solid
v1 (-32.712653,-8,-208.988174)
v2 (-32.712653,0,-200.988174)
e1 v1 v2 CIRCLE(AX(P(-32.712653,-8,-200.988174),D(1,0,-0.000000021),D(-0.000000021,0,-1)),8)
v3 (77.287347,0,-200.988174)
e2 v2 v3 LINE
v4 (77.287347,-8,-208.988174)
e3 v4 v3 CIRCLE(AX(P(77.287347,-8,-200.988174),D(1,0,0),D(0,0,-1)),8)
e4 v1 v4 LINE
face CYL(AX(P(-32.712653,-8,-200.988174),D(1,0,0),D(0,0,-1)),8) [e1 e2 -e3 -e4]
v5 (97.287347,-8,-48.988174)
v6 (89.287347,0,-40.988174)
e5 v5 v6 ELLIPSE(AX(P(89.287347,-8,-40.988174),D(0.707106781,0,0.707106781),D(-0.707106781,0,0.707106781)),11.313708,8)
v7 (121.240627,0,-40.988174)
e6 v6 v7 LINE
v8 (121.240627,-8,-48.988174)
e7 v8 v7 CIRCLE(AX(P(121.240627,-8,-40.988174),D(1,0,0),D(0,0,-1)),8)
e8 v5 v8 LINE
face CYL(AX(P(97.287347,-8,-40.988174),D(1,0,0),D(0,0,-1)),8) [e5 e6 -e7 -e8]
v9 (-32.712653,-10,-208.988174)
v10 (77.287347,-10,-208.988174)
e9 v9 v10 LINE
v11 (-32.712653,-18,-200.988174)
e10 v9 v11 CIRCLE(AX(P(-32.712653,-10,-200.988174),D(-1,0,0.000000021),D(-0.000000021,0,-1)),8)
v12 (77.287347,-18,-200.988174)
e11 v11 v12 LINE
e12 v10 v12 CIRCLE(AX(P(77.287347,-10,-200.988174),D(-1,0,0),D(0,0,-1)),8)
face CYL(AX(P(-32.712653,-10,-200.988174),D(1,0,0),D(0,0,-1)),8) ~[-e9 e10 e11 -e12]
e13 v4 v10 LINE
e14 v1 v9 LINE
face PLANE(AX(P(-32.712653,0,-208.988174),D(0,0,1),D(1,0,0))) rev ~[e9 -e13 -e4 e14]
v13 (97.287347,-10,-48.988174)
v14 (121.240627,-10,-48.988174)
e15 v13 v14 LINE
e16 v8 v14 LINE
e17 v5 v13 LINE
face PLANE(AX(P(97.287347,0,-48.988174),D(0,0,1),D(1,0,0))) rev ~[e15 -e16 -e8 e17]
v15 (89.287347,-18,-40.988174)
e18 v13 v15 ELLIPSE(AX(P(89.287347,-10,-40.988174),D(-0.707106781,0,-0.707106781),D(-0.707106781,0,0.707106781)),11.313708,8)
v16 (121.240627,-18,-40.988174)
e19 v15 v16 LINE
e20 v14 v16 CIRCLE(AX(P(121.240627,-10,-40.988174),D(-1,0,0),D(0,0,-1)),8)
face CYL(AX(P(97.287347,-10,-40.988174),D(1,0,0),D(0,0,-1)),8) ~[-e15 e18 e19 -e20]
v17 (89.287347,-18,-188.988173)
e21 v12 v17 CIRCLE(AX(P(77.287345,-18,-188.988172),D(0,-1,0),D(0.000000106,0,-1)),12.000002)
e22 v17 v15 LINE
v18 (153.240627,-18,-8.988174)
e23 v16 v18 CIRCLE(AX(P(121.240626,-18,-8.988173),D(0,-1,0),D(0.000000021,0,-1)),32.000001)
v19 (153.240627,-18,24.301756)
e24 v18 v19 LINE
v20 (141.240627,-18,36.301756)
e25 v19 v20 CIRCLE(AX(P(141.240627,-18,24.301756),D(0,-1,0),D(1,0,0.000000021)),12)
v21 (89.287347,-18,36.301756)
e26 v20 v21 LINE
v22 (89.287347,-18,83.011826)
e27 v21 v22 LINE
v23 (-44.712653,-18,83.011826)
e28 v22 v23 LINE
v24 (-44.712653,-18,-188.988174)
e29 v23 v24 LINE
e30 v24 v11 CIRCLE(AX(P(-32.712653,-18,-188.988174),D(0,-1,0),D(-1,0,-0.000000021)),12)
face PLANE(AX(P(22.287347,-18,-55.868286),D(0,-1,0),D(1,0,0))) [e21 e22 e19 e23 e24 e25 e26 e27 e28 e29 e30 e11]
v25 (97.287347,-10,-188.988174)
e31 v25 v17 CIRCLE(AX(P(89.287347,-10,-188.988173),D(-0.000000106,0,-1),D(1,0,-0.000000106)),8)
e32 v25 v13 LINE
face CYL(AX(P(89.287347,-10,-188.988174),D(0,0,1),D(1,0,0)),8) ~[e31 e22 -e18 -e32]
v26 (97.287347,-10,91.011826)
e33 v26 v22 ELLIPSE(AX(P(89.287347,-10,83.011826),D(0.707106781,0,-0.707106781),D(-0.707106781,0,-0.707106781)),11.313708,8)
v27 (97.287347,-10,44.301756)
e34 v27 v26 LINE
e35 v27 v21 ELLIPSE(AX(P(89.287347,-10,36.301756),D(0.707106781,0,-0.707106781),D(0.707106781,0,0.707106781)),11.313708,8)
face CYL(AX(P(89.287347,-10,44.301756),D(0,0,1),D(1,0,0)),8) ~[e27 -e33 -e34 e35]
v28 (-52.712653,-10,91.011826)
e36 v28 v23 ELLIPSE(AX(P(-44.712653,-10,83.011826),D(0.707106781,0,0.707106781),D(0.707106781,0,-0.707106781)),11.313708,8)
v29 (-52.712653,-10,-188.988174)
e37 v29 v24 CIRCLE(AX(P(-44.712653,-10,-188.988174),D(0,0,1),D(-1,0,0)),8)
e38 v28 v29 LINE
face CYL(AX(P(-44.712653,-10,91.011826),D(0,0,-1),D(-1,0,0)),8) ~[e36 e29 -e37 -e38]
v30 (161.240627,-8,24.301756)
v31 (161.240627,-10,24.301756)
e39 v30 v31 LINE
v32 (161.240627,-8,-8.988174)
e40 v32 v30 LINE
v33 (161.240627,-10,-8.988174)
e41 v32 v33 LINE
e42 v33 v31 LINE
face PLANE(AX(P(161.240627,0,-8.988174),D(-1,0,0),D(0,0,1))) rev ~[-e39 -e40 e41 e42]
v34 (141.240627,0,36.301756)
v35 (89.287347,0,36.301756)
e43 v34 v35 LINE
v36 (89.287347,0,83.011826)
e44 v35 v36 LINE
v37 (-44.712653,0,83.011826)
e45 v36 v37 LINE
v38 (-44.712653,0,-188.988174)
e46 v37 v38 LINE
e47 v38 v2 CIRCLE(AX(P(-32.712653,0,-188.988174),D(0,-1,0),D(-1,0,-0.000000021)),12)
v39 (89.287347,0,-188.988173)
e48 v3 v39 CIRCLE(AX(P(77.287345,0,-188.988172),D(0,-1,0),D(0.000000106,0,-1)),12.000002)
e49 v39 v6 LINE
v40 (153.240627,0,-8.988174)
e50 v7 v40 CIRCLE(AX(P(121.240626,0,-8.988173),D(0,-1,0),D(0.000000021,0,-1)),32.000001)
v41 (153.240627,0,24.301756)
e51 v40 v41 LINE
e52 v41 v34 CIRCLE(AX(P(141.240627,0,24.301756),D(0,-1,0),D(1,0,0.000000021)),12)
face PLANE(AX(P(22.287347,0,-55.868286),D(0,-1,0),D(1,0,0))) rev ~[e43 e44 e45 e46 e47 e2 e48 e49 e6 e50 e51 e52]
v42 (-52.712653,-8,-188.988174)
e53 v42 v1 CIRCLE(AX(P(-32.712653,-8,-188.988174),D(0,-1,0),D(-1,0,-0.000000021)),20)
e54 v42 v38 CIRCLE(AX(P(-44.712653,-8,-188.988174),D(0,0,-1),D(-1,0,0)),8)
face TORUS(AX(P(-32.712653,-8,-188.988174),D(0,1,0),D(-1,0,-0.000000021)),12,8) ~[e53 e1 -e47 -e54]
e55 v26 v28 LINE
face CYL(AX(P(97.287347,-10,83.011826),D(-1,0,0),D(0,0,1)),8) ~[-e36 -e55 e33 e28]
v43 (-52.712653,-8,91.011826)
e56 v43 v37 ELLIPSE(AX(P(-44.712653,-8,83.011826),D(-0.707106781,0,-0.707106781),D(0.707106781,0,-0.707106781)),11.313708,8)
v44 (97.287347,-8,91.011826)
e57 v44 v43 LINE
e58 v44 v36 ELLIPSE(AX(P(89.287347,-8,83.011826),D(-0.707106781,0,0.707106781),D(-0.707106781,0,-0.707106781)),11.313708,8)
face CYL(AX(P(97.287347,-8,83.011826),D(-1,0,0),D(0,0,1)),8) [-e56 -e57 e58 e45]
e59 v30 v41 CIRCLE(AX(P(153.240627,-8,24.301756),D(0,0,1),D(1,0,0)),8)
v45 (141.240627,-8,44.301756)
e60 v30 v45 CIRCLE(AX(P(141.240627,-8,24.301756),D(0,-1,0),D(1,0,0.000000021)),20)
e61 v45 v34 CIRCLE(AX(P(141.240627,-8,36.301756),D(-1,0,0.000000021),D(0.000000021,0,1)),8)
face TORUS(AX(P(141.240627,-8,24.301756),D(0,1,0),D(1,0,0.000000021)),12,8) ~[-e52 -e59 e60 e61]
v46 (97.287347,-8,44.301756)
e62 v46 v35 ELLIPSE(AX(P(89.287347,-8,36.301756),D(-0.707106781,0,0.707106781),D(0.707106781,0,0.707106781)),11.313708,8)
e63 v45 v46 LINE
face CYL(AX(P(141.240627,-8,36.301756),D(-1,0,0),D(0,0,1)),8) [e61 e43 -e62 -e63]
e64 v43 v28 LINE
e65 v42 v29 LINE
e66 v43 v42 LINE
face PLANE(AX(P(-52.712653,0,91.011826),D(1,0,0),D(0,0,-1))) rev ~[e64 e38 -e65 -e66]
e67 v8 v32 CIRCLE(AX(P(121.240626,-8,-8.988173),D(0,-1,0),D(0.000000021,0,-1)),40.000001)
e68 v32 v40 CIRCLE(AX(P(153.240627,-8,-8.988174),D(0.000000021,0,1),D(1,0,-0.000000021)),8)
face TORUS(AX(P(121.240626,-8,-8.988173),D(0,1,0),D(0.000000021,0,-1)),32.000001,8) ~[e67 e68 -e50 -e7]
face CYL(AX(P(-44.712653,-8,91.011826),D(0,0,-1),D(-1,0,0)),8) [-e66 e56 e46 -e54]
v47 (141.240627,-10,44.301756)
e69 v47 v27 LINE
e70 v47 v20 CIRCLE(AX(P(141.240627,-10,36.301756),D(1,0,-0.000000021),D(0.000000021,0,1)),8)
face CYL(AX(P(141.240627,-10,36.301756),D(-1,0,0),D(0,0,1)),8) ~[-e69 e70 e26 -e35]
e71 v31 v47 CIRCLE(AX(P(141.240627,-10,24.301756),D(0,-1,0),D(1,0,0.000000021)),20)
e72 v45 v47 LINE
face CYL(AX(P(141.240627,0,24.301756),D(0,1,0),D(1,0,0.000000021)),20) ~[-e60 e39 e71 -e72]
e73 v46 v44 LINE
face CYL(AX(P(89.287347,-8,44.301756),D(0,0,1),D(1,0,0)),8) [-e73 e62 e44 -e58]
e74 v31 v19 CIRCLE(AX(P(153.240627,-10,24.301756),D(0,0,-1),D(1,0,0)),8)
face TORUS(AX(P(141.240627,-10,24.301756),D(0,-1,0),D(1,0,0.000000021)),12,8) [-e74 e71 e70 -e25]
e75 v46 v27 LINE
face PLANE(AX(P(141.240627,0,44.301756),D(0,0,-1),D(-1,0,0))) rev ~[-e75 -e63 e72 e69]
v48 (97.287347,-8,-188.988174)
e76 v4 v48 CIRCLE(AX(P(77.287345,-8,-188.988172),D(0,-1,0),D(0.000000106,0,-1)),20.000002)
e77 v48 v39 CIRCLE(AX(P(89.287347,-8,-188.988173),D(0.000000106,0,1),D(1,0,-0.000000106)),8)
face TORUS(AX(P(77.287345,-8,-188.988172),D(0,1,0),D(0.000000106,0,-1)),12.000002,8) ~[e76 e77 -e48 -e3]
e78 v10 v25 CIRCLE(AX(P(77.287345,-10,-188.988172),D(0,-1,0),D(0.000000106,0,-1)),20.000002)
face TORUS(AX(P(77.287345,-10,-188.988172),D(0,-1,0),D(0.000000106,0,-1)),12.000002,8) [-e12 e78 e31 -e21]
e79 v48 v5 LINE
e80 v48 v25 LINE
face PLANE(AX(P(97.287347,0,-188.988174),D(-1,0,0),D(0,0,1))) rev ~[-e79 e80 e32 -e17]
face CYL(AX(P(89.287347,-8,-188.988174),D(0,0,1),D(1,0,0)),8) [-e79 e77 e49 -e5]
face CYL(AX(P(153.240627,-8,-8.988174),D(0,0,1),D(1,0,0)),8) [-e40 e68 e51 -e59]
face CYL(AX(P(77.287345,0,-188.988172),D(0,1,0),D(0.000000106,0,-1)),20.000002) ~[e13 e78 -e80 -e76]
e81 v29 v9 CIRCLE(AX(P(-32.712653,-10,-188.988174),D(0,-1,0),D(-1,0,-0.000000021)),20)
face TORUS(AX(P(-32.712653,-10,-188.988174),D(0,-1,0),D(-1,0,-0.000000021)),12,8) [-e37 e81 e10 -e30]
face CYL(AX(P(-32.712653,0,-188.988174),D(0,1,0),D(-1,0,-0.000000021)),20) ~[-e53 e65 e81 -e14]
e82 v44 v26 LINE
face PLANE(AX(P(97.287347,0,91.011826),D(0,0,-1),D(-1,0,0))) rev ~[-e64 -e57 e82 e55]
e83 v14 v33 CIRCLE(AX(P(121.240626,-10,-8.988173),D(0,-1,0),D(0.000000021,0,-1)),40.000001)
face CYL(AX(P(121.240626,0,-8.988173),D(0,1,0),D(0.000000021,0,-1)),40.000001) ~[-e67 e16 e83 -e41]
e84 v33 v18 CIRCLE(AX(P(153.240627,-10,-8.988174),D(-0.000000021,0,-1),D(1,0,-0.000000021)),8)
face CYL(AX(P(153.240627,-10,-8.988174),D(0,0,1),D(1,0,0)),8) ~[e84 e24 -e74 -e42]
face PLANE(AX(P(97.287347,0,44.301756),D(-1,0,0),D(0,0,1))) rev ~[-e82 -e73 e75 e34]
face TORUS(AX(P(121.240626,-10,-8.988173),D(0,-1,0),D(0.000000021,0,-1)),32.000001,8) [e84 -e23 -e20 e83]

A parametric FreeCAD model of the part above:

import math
import FreeCAD as App
import Part
import Sketcher
from FreeCAD import Vector


def edges_at(feature, points):
    """Names of the edges that pass closest to the given points."""
    edges = feature.Shape.Edges
    near = lambda p: min(range(len(edges)), key=lambda i: edges[i].distToShape(Part.Vertex(*p))[0])
    return sorted({f"Edge{near(p) + 1}" for p in points})

doc = App.newDocument("Part")
body = doc.addObject("PartDesign::Body", "Body")

sketch1 = body.newObject("Sketcher::SketchObject", "Sketch")
sketch1.AttachmentSupport = (doc.getObject("XZ_Plane"), [""])
sketch1.MapMode = "FlatFace"
sketch1.addGeometry(Part.ArcOfCircle(Part.Circle(Vector(-37.712653, -188.988174, 0), Vector(0, 0, 1), 20), math.radians(-179.999999), math.radians(-90.000001)), False)
sketch1.addGeometry(Part.LineSegment(Vector(-37.712653, -208.988174, 0), Vector(72.287347, -208.988174, 0)), False)
sketch1.addGeometry(Part.ArcOfCircle(Part.Circle(Vector(72.287345, -188.988172, 0), Vector(0, 0, 1), 20.000002), math.radians(-89.999994), math.radians(-0.000006)), False)
sketch1.addGeometry(Part.LineSegment(Vector(92.287347, -188.988174, 0), Vector(92.287347, -48.988174, 0)), False)
sketch1.addGeometry(Part.LineSegment(Vector(92.287347, -48.988174, 0), Vector(116.240627, -48.988174, 0)), False)
sketch1.addGeometry(Part.ArcOfCircle(Part.Circle(Vector(116.240626, -8.988173, 0), Vector(0, 0, 1), 40.000001), math.radians(-89.999999), math.radians(-0.000001)), False)
sketch1.addGeometry(Part.LineSegment(Vector(156.240627, -8.988174, 0), Vector(156.240627, 24.301756, 0)), False)
sketch1.addGeometry(Part.ArcOfCircle(Part.Circle(Vector(136.240627, 24.301756, 0), Vector(0, 0, 1), 20), math.radians(0.000001), math.radians(89.999999)), False)
sketch1.addGeometry(Part.LineSegment(Vector(136.240627, 44.301756, 0), Vector(92.287347, 44.301756, 0)), False)
sketch1.addGeometry(Part.LineSegment(Vector(92.287347, 44.301756, 0), Vector(92.287347, 91.011826, 0)), False)
sketch1.addGeometry(Part.LineSegment(Vector(92.287347, 91.011826, 0), Vector(-57.712653, 91.011826, 0)), False)
sketch1.addGeometry(Part.LineSegment(Vector(-57.712653, 91.011826, 0), Vector(-57.712653, -188.988174, 0)), False)
sketch1.addConstraint(Sketcher.Constraint("Tangent", 0, 2, 1, 1))
sketch1.addConstraint(Sketcher.Constraint("Tangent", 1, 2, 2, 1))
sketch1.addConstraint(Sketcher.Constraint("Tangent", 2, 2, 3, 1))
sketch1.addConstraint(Sketcher.Constraint("Coincident", 3, 2, 4, 1))
sketch1.addConstraint(Sketcher.Constraint("Tangent", 4, 2, 5, 1))
sketch1.addConstraint(Sketcher.Constraint("Tangent", 5, 2, 6, 1))
sketch1.addConstraint(Sketcher.Constraint("Tangent", 6, 2, 7, 1))
sketch1.addConstraint(Sketcher.Constraint("Tangent", 7, 2, 8, 1))
sketch1.addConstraint(Sketcher.Constraint("Coincident", 8, 2, 9, 1))
sketch1.addConstraint(Sketcher.Constraint("Coincident", 9, 2, 10, 1))
sketch1.addConstraint(Sketcher.Constraint("Coincident", 10, 2, 11, 1))
sketch1.addConstraint(Sketcher.Constraint("Tangent", 11, 2, 0, 1))
sketch1.addConstraint(Sketcher.Constraint("Horizontal", 1))
sketch1.addConstraint(Sketcher.Constraint("Vertical", 3))
sketch1.addConstraint(Sketcher.Constraint("Horizontal", 4))
sketch1.addConstraint(Sketcher.Constraint("Vertical", 6))
sketch1.addConstraint(Sketcher.Constraint("Horizontal", 8))
sketch1.addConstraint(Sketcher.Constraint("Vertical", 9))
sketch1.addConstraint(Sketcher.Constraint("Horizontal", 10))
sketch1.addConstraint(Sketcher.Constraint("Vertical", 11))
sketch1.addConstraint(Sketcher.Constraint("Equal", 0, 2))
sketch1.addConstraint(Sketcher.Constraint("Equal", 2, 7))
sketch1.addConstraint(Sketcher.Constraint("Vertical", 3, 2, 8, 2))
sketch1.addConstraint(Sketcher.Constraint("Radius", 0, 20.0))
sketch1.addConstraint(Sketcher.Constraint("Radius", 5, 40.000001))
sketch1.addConstraint(Sketcher.Constraint("DistanceX", 1, 1, 1, 2, 110.0))
sketch1.addConstraint(Sketcher.Constraint("DistanceY", 3, 1, 3, 2, 140.0))
sketch1.addConstraint(Sketcher.Constraint("DistanceY", 11, 2, 11, 1, 280.0))
sketch1.addConstraint(Sketcher.Constraint("DistanceX", 4, 1, 4, 2, 23.95328))
sketch1.addConstraint(Sketcher.Constraint("DistanceY", 6, 1, 6, 2, 33.28993))
sketch1.addConstraint(Sketcher.Constraint("DistanceY", 2, 3, -1, 1, 188.988172))
sketch1.addConstraint(Sketcher.Constraint("DistanceX", 0, 3, -1, 1, 37.712653))
pad1 = body.newObject("PartDesign::Pad", "Pad")
pad1.Profile = sketch1
pad1.Length = 18
doc.recompute()

fillet = body.newObject("PartDesign::Fillet", "Fillet")
fillet.Base = (pad1, edges_at(pad1, [
    (-57.713, -18, -48.988),
    (-57.713, 0, -48.988),
    (17.287, -18, 91.012),
    (17.287, 0, 91.012),
    (92.287, -18, 67.657),
    (92.287, 0, 67.657),
    (114.264, 0, 44.302),
    (114.264, -18, 44.302),
    (150.383, 0, 38.444),
]))
fillet.Radius = 8
body2 = doc.addObject("PartDesign::Body", "Body001")
doc.recompute()

body.Placement = App.Placement(Vector(5, 0, 0), App.Rotation(Vector(0, 0, 1), 0))
boolean = body2.newObject("PartDesign::Boolean", "Boolean")
boolean.Type = "Fuse"
boolean.addObjects([body])

doc.recompute()
